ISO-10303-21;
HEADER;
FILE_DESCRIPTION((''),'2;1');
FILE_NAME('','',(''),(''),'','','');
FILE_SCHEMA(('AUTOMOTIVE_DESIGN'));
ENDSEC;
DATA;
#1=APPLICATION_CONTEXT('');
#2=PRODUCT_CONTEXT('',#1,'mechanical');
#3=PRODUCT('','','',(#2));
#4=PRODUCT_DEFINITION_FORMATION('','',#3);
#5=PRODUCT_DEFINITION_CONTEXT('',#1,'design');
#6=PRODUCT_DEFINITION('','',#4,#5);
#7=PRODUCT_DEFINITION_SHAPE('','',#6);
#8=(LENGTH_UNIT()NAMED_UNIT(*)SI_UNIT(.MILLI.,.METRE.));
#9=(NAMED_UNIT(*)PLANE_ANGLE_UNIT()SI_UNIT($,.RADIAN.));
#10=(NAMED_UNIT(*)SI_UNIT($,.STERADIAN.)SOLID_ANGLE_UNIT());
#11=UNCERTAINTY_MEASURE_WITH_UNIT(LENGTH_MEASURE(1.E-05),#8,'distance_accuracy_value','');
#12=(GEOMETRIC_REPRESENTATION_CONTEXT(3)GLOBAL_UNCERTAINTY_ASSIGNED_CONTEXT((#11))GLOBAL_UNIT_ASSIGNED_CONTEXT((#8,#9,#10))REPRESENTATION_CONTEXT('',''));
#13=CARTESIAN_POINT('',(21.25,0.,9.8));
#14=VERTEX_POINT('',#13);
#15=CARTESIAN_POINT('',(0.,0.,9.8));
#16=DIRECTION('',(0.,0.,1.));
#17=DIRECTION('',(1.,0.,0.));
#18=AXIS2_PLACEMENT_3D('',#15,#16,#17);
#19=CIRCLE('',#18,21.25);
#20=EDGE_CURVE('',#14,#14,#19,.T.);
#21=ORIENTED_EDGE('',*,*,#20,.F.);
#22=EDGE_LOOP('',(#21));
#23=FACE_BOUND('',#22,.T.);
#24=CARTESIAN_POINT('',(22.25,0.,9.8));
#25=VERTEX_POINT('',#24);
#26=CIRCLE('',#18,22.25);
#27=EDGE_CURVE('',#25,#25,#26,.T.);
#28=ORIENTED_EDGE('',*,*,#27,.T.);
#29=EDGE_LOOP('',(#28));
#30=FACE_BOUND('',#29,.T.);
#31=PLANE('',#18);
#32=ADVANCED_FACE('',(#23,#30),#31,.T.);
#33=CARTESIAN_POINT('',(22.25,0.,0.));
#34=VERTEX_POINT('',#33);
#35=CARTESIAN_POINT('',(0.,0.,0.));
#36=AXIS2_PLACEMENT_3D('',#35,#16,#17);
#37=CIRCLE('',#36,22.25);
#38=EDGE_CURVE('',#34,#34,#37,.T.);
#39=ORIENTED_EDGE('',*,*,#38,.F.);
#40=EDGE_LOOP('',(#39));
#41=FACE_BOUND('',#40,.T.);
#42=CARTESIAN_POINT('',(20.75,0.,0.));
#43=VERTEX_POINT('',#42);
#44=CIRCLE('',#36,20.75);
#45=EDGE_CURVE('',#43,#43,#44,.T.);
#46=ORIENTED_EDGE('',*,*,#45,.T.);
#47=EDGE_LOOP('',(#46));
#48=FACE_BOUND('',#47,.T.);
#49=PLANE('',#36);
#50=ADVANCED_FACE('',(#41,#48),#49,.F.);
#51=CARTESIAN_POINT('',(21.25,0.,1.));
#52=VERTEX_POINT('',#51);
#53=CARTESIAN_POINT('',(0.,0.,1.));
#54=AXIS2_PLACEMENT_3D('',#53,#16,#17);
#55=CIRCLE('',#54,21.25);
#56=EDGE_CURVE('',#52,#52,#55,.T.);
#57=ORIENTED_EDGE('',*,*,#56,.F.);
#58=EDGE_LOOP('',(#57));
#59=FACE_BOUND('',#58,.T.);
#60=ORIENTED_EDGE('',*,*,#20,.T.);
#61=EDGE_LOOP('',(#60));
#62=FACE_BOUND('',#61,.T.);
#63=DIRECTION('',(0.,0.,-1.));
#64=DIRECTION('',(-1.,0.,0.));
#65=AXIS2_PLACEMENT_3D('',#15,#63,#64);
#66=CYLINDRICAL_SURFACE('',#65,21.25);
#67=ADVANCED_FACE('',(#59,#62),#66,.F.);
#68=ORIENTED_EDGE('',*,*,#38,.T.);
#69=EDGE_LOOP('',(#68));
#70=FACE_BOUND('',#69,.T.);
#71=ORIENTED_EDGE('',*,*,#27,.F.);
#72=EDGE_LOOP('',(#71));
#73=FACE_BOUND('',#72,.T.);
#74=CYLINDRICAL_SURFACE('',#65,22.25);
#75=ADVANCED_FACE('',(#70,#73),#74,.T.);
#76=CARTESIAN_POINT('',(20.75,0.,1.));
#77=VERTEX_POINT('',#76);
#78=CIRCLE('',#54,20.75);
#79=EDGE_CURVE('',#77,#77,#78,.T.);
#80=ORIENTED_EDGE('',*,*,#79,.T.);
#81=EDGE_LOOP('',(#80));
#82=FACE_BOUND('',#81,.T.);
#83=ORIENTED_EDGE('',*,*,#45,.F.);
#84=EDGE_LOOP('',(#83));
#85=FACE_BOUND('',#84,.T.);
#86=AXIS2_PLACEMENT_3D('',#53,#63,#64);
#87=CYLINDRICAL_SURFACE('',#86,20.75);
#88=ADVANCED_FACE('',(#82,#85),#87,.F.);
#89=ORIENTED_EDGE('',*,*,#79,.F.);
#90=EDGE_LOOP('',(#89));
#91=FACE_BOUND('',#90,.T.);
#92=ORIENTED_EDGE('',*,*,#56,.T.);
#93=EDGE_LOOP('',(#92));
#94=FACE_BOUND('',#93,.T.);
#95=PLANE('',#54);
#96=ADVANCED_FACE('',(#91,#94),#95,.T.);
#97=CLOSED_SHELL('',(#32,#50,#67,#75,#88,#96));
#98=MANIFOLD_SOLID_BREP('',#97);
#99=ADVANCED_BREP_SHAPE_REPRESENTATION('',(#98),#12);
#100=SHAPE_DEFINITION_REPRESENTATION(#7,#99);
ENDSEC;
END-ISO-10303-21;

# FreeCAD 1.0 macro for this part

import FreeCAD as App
import Part
import Sketcher

V = App.Vector
Q = App.Units.Quantity

doc = App.newDocument("Part")
params = doc.addObject("Spreadsheet::Sheet", "Params")
for row, (alias, value) in enumerate([
    ("sketch1_diameter", "44.5 mm"),
    ("sketch1_diameter2", "42.5 mm"),
    ("pad1_length", "9.8 mm"),
    ("sketch2_diameter", "42.5 mm"),
    ("sketch2_diameter2", "41.5 mm"),
    ("pad2_length", "1 mm"),
], start=1):
    params.set(f"A{row}", alias)
    params.set(f"B{row}", "=" + value)
    params.setAlias(f"B{row}", alias)

body = doc.addObject("PartDesign::Body", "Body")

sketch1 = body.newObject("Sketcher::SketchObject", "Sketch")
sketch1.AttachmentSupport = (doc.getObject("XY_Plane"), [""])
sketch1.MapMode = "FlatFace"
sketch1.addGeometry([
    Part.Circle(V(0, 0, 0), V(0, 0, 1), 22),
    Part.Circle(V(0, 0, 0), V(0, 0, 1), 21),
], False)
sketch1.addConstraint([
    Sketcher.Constraint("Coincident", 0, 3, -1, 1),
    Sketcher.Constraint("Coincident", 1, 3, -1, 1),
    Sketcher.Constraint("Diameter", 0, Q("44.5 mm")),
    Sketcher.Constraint("Diameter", 1, Q("42.5 mm")),
])
sketch1.setExpression("Constraints[2]", "Params.sketch1_diameter")
sketch1.setExpression("Constraints[3]", "Params.sketch1_diameter2")
pad1 = body.newObject("PartDesign::Pad", "Pad")
pad1.Profile = sketch1
pad1.setExpression("Length", "Params.pad1_length")

sketch2 = body.newObject("Sketcher::SketchObject", "Sketch001")
sketch2.AttachmentSupport = (doc.getObject("XY_Plane"), [""])
sketch2.MapMode = "FlatFace"
sketch2.addGeometry([
    Part.Circle(V(0, 0, 0), V(0, 0, 1), 21),
    Part.Circle(V(0, 0, 0), V(0, 0, 1), 21),
], False)
sketch2.addConstraint([
    Sketcher.Constraint("Coincident", 0, 3, -1, 1),
    Sketcher.Constraint("Coincident", 1, 3, -1, 1),
    Sketcher.Constraint("Diameter", 0, Q("42.5 mm")),
    Sketcher.Constraint("Diameter", 1, Q("41.5 mm")),
])
sketch2.setExpression("Constraints[2]", "Params.sketch2_diameter")
sketch2.setExpression("Constraints[3]", "Params.sketch2_diameter2")
pad2 = body.newObject("PartDesign::Pad", "Pad001")
pad2.Profile = sketch2
pad2.setExpression("Length", "Params.pad2_length")

doc.recompute()
